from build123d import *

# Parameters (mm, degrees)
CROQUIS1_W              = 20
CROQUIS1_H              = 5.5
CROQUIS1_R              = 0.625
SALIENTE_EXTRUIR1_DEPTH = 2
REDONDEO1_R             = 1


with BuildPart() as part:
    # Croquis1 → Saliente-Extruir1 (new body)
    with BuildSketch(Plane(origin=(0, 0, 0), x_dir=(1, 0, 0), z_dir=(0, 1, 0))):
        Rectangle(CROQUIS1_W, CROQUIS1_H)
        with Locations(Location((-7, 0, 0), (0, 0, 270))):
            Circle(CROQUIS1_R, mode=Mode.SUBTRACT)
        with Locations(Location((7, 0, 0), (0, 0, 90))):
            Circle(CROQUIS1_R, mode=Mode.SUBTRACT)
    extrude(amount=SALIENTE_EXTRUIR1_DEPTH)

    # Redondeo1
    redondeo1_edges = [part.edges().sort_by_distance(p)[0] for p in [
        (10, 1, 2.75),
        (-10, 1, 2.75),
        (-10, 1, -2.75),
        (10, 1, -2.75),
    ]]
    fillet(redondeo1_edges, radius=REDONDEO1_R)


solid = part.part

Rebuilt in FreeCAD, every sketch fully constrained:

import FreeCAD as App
import Part
import Sketcher
from FreeCAD import Vector


def edges_at(feature, points):
    """Names of the edges that pass closest to the given points."""
    edges = feature.Shape.Edges
    near = lambda p: min(range(len(edges)), key=lambda i: edges[i].distToShape(Part.Vertex(*p))[0])
    return sorted({f"Edge{near(p) + 1}" for p in points})


def add_polygon(sketch, points):
    """Adds a closed chain of lines whose ends are joined by coincident constraints."""
    first, n = sketch.GeometryCount, len(points)
    for a, b in zip(points, points[1:] + points[:1]):
        sketch.addGeometry(Part.LineSegment(App.Vector(*a, 0), App.Vector(*b, 0)), False)
    for i in range(n):
        sketch.addConstraint(Sketcher.Constraint("Coincident", first + i, 2, first + (i + 1) % n, 1))

doc = App.newDocument("Part")
body = doc.addObject("PartDesign::Body", "Body")

sketch1 = doc.addObject("Sketcher::SketchObject", "Sketch")
body.addObject(sketch1)
sketch1.AttachmentSupport = (doc.XZ_Plane, [""])
sketch1.MapMode = "FlatFace"
add_polygon(sketch1, [(-10, -2.75), (-10, 2.75), (10, 2.75), (10, -2.75)])
sketch1.addGeometry(Part.Circle(Vector(-7, 0, 0), Vector(0, 0, 1), 0.625), False)
sketch1.addGeometry(Part.Circle(Vector(7, 0, 0), Vector(0, 0, 1), 0.625), False)
sketch1.addConstraint([
    Sketcher.Constraint("Vertical", 0),
    Sketcher.Constraint("Horizontal", 1),
    Sketcher.Constraint("Vertical", 2),
    Sketcher.Constraint("Horizontal", 3),
    Sketcher.Constraint("Equal", 4, 5),
    Sketcher.Constraint("Symmetric", 4, 3, 5, 3, -1, 1),
    Sketcher.Constraint("Symmetric", 0, 2, 2, 2, -1, 1),
    Sketcher.Constraint("PointOnObject", 4, 3, -1),
    Sketcher.Constraint("Diameter", 4, 1.25),
    Sketcher.Constraint("DistanceX", 1, 1, 1, 2, 20.0),
    Sketcher.Constraint("DistanceY", 0, 1, 0, 2, 5.5),
    Sketcher.Constraint("DistanceX", 4, 3, -1, 1, 7.0),
])
pad1 = doc.addObject("PartDesign::Pad", "Pad")
body.addObject(pad1)
pad1.Profile = sketch1
pad1.Length = 2
pad1.Reversed = True
doc.recompute()

fillet = doc.addObject("PartDesign::Fillet", "Fillet")
body.addObject(fillet)
fillet.Base = (pad1, edges_at(pad1, [
    (10, 1, 2.75),
    (-10, 1, 2.75),
    (-10, 1, -2.75),
    (10, 1, -2.75),
]))
fillet.Radius = 1

doc.recompute()
